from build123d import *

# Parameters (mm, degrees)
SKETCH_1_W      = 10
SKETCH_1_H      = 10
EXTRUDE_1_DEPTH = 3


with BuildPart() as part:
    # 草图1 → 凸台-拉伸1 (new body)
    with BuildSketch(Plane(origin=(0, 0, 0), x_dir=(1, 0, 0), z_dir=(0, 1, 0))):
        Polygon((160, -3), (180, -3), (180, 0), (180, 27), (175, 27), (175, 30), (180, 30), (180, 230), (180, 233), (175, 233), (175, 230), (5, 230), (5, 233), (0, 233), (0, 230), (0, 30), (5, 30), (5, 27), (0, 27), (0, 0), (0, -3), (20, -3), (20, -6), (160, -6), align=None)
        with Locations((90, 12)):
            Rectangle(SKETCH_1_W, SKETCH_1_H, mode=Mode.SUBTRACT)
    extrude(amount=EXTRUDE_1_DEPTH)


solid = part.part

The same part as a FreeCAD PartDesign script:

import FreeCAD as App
import Part
import Sketcher

V = App.Vector


def add_polygon(sketch, points):
    """Adds a closed chain of lines whose ends are joined by coincident constraints."""
    first, n = sketch.GeometryCount, len(points)
    for a, b in zip(points, points[1:] + points[:1]):
        sketch.addGeometry(Part.LineSegment(App.Vector(*a, 0), App.Vector(*b, 0)), False)
    for i in range(n):
        sketch.addConstraint(Sketcher.Constraint("Coincident", first + i, 2, first + (i + 1) % n, 1))

doc = App.newDocument("Part")
body = doc.addObject("PartDesign::Body", "Body")

sketch1 = body.newObject("Sketcher::SketchObject", "Sketch")
sketch1.AttachmentSupport = (doc.getObject("XZ_Plane"), [""])
sketch1.MapMode = "FlatFace"
add_polygon(sketch1, [(160, 3), (180, 3), (180, -27), (175, -27), (175, -30), (180, -30), (180, -233), (175, -233), (175, -230), (5, -230), (5, -233), (0, -233), (0, -30), (5, -30), (5, -27), (0, -27), (0, 3), (20, 3), (20, 6), (160, 6)])
add_polygon(sketch1, [(95, -7), (85, -7), (85, -17), (95, -17)])
sketch1.addConstraint(Sketcher.Constraint("Horizontal", 0))
sketch1.addConstraint(Sketcher.Constraint("Vertical", 1))
sketch1.addConstraint(Sketcher.Constraint("Horizontal", 2))
sketch1.addConstraint(Sketcher.Constraint("Vertical", 3))
sketch1.addConstraint(Sketcher.Constraint("Horizontal", 4))
sketch1.addConstraint(Sketcher.Constraint("Vertical", 5))
sketch1.addConstraint(Sketcher.Constraint("Horizontal", 6))
sketch1.addConstraint(Sketcher.Constraint("Vertical", 7))
sketch1.addConstraint(Sketcher.Constraint("Horizontal", 8))
sketch1.addConstraint(Sketcher.Constraint("Vertical", 9))
sketch1.addConstraint(Sketcher.Constraint("Horizontal", 10))
sketch1.addConstraint(Sketcher.Constraint("Vertical", 11))
sketch1.addConstraint(Sketcher.Constraint("Horizontal", 12))
sketch1.addConstraint(Sketcher.Constraint("Vertical", 13))
sketch1.addConstraint(Sketcher.Constraint("Horizontal", 14))
sketch1.addConstraint(Sketcher.Constraint("Vertical", 15))
sketch1.addConstraint(Sketcher.Constraint("Horizontal", 16))
sketch1.addConstraint(Sketcher.Constraint("Vertical", 17))
sketch1.addConstraint(Sketcher.Constraint("Horizontal", 18))
sketch1.addConstraint(Sketcher.Constraint("Vertical", 19))
sketch1.addConstraint(Sketcher.Constraint("Horizontal", 20))
sketch1.addConstraint(Sketcher.Constraint("Vertical", 21))
sketch1.addConstraint(Sketcher.Constraint("Horizontal", 22))
sketch1.addConstraint(Sketcher.Constraint("Vertical", 23))
sketch1.addConstraint(Sketcher.Constraint("PointOnObject", 10, 2, -2))
sketch1.addConstraint(Sketcher.Constraint("PointOnObject", 14, 2, -2))
sketch1.addConstraint(Sketcher.Constraint("Horizontal", 6, 2, 9, 2))
sketch1.addConstraint(Sketcher.Constraint("Horizontal", 4, 2, 11, 2))
sketch1.addConstraint(Sketcher.Constraint("Horizontal", 2, 2, 13, 2))
sketch1.addConstraint(Sketcher.Constraint("Horizontal", 0, 2, 15, 2))
sketch1.addConstraint(Sketcher.Constraint("Vertical", 1, 2, 4, 2))
sketch1.addConstraint(Sketcher.Constraint("Vertical", 3, 2, 6, 2))
sketch1.addConstraint(Sketcher.Constraint("Vertical", 9, 2, 12, 2))
sketch1.addConstraint(Sketcher.Constraint("Equal", 6, 10))
sketch1.addConstraint(Sketcher.Constraint("Equal", 0, 16))
sketch1.addConstraint(Sketcher.Constraint("Equal", 3, 7))
sketch1.addConstraint(Sketcher.Constraint("Equal", 13, 17))
sketch1.addConstraint(Sketcher.Constraint("Equal", 22, 21))
sketch1.addConstraint(Sketcher.Constraint("DistanceX", 0, 1, 0, 2, 20.0))
sketch1.addConstraint(Sketcher.Constraint("DistanceX", 2, 2, 2, 1, 5.0))
sketch1.addConstraint(Sketcher.Constraint("DistanceX", 8, 2, 8, 1, 170.0))
sketch1.addConstraint(Sketcher.Constraint("DistanceX", 20, 2, 20, 1, 10.0))
sketch1.addConstraint(Sketcher.Constraint("DistanceY", 1, 2, 1, 1, 30.0))
sketch1.addConstraint(Sketcher.Constraint("DistanceY", 3, 2, 3, 1, 3.0))
sketch1.addConstraint(Sketcher.Constraint("DistanceY", 5, 2, 5, 1, 203.0))
sketch1.addConstraint(Sketcher.Constraint("DistanceY", -1, 1, 0, 2, 3.0))
sketch1.addConstraint(Sketcher.Constraint("DistanceX", -1, 1, 20, 2, 85.0))
sketch1.addConstraint(Sketcher.Constraint("DistanceY", 20, 2, -1, 1, 7.0))
pad1 = body.newObject("PartDesign::Pad", "Pad")
pad1.Profile = sketch1
pad1.Length = 3
pad1.Reversed = True

doc.recompute()
